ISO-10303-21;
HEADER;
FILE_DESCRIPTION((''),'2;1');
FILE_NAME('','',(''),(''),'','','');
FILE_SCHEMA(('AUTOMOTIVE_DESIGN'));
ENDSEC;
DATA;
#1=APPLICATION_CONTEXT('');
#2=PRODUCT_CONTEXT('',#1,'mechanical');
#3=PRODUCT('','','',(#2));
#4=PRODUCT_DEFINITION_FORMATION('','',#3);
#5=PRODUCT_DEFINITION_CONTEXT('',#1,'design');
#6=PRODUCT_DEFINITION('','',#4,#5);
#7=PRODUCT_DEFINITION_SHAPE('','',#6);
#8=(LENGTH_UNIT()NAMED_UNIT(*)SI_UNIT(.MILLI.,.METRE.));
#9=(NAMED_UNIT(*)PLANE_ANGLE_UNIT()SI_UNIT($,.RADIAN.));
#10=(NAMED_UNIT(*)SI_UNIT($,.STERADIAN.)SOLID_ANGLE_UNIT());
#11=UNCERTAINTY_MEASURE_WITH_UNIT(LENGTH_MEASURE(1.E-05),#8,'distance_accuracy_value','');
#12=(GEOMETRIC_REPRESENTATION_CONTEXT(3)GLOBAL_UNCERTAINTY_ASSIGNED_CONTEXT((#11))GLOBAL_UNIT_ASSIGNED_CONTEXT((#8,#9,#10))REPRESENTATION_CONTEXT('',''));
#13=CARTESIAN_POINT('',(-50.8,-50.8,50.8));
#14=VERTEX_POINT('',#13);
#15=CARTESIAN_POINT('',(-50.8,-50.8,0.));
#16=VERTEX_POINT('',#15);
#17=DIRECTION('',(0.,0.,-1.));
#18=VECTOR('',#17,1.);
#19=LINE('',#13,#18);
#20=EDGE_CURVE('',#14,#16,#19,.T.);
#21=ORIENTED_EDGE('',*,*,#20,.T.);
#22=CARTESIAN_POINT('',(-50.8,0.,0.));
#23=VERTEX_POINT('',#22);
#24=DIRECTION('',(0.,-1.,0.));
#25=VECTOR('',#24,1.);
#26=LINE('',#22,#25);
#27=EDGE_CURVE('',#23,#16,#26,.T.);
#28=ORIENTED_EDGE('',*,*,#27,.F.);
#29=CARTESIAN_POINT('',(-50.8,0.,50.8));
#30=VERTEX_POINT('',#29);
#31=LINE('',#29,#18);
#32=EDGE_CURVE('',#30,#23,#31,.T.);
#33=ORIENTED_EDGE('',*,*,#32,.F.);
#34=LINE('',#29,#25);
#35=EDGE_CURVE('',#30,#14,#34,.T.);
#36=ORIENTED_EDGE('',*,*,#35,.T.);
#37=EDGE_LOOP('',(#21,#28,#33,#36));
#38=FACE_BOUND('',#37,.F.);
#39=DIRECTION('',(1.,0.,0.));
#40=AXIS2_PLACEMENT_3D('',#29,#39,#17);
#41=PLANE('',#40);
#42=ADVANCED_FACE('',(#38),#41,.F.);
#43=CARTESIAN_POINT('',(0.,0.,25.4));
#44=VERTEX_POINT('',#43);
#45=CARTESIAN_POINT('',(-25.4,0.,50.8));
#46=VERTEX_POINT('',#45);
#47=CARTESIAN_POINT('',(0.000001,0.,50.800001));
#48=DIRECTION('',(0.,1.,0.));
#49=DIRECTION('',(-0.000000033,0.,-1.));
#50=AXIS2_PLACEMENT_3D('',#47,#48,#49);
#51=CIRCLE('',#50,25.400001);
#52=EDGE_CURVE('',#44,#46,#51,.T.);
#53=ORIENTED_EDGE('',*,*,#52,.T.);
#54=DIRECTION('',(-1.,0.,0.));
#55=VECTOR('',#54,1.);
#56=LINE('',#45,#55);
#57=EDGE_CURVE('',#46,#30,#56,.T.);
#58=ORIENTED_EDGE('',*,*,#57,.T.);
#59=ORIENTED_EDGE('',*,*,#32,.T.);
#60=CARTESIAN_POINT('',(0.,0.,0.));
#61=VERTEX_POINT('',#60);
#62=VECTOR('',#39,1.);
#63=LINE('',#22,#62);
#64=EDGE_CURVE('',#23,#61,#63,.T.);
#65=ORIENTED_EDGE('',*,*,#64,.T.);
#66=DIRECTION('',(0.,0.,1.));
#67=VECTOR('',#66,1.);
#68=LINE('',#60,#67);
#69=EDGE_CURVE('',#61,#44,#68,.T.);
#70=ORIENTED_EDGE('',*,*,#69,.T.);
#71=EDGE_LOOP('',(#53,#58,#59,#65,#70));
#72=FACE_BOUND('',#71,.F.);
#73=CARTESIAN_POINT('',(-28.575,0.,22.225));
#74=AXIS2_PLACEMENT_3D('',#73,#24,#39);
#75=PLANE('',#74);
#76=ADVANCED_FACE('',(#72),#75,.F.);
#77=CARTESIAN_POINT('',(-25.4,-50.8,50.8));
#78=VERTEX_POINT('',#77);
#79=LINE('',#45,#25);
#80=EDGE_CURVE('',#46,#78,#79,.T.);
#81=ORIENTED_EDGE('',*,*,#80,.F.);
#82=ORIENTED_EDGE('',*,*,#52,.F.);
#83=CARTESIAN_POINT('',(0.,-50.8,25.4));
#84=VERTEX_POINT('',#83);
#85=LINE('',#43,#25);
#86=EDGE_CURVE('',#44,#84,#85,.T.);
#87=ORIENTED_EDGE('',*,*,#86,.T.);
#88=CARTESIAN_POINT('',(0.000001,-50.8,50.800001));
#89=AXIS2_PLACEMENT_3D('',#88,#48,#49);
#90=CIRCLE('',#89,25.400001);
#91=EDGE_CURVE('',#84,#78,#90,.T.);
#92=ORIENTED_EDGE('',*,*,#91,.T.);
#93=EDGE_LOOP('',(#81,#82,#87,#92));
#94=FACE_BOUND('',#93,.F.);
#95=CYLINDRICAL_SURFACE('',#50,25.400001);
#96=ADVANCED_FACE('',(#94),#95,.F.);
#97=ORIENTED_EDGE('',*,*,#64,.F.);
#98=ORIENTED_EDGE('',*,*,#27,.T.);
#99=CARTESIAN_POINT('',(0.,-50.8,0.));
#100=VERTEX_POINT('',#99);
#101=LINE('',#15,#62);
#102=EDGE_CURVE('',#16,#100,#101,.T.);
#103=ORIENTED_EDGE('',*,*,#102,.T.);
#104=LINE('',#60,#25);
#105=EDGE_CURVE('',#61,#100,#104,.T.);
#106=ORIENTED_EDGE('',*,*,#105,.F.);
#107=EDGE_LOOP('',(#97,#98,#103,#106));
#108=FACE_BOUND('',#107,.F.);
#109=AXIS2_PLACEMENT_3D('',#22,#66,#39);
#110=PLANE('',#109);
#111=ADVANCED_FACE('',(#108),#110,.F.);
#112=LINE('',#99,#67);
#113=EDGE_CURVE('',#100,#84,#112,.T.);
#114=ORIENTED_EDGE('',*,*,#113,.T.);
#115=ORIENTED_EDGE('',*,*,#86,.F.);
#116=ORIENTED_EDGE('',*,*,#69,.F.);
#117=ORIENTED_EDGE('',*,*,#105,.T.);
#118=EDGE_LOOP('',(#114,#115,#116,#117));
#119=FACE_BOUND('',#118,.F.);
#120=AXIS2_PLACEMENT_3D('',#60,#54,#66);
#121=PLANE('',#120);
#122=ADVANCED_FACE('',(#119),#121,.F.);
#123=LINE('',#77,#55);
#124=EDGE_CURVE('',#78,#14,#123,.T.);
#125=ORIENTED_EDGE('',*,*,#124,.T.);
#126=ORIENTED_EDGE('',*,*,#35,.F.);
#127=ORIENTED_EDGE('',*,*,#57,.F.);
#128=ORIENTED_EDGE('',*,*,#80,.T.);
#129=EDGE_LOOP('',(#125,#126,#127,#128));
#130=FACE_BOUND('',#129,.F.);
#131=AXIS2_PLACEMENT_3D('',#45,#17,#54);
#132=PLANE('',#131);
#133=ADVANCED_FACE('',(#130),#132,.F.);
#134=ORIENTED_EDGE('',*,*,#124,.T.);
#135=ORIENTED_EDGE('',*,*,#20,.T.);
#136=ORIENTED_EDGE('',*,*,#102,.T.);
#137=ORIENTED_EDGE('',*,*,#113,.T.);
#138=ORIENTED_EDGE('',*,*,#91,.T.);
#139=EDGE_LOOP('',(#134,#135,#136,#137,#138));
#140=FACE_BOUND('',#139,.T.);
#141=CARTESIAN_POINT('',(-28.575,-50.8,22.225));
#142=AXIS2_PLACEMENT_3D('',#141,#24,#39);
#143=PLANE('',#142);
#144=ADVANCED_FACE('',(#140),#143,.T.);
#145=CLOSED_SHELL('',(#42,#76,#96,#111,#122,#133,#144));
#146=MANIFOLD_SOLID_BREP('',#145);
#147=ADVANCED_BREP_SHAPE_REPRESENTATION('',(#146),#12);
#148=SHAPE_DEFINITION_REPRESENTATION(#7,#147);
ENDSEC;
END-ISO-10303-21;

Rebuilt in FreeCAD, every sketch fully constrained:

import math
import FreeCAD as App
import Part
import Sketcher
from FreeCAD import Vector
Q = App.Units.Quantity

doc = App.newDocument("Part")
body = doc.addObject("PartDesign::Body", "Body")

sketch1 = body.newObject("Sketcher::SketchObject", "Sketch")
sketch1.AttachmentSupport = (doc.getObject("XZ_Plane"), [""])
sketch1.MapMode = "FlatFace"
sketch1.addGeometry([
    Part.LineSegment(Vector(-51, 0, 0), Vector(0, 0, 0)),
    Part.LineSegment(Vector(0, 0, 0), Vector(0, 25, 0)),
    Part.ArcOfCircle(Part.Circle(Vector(0, 51, 0), Vector(0, 0, 1), 25), math.radians(-180), math.radians(-90)),
    Part.LineSegment(Vector(-25, 51, 0), Vector(-51, 51, 0)),
    Part.LineSegment(Vector(-51, 51, 0), Vector(-51, 0, 0)),
], False)
sketch1.addConstraint([
    Sketcher.Constraint("Coincident", 0, 2, 1, 1),
    Sketcher.Constraint("Coincident", 1, 2, 2, 2),
    Sketcher.Constraint("Coincident", 2, 1, 3, 1),
    Sketcher.Constraint("Coincident", 3, 2, 4, 1),
    Sketcher.Constraint("Coincident", 4, 2, 0, 1),
    Sketcher.Constraint("Horizontal", 0),
    Sketcher.Constraint("Vertical", 1),
    Sketcher.Constraint("Horizontal", 3),
    Sketcher.Constraint("Vertical", 4),
    Sketcher.Constraint("Coincident", 0, 2, -1, 1),
    Sketcher.Constraint("PointOnObject", 2, 3, -2),
    Sketcher.Constraint("Equal", 3, 1),
    Sketcher.Constraint("Equal", 0, 4),
    Sketcher.Constraint("Radius", 2, Q("1 in")),
    Sketcher.Constraint("DistanceX", 0, 1, 0, 2, Q("2 in")),
])
pad1 = body.newObject("PartDesign::Pad", "Pad")
pad1.Profile = sketch1
pad1.Length = Q("2 in")

doc.recompute()
